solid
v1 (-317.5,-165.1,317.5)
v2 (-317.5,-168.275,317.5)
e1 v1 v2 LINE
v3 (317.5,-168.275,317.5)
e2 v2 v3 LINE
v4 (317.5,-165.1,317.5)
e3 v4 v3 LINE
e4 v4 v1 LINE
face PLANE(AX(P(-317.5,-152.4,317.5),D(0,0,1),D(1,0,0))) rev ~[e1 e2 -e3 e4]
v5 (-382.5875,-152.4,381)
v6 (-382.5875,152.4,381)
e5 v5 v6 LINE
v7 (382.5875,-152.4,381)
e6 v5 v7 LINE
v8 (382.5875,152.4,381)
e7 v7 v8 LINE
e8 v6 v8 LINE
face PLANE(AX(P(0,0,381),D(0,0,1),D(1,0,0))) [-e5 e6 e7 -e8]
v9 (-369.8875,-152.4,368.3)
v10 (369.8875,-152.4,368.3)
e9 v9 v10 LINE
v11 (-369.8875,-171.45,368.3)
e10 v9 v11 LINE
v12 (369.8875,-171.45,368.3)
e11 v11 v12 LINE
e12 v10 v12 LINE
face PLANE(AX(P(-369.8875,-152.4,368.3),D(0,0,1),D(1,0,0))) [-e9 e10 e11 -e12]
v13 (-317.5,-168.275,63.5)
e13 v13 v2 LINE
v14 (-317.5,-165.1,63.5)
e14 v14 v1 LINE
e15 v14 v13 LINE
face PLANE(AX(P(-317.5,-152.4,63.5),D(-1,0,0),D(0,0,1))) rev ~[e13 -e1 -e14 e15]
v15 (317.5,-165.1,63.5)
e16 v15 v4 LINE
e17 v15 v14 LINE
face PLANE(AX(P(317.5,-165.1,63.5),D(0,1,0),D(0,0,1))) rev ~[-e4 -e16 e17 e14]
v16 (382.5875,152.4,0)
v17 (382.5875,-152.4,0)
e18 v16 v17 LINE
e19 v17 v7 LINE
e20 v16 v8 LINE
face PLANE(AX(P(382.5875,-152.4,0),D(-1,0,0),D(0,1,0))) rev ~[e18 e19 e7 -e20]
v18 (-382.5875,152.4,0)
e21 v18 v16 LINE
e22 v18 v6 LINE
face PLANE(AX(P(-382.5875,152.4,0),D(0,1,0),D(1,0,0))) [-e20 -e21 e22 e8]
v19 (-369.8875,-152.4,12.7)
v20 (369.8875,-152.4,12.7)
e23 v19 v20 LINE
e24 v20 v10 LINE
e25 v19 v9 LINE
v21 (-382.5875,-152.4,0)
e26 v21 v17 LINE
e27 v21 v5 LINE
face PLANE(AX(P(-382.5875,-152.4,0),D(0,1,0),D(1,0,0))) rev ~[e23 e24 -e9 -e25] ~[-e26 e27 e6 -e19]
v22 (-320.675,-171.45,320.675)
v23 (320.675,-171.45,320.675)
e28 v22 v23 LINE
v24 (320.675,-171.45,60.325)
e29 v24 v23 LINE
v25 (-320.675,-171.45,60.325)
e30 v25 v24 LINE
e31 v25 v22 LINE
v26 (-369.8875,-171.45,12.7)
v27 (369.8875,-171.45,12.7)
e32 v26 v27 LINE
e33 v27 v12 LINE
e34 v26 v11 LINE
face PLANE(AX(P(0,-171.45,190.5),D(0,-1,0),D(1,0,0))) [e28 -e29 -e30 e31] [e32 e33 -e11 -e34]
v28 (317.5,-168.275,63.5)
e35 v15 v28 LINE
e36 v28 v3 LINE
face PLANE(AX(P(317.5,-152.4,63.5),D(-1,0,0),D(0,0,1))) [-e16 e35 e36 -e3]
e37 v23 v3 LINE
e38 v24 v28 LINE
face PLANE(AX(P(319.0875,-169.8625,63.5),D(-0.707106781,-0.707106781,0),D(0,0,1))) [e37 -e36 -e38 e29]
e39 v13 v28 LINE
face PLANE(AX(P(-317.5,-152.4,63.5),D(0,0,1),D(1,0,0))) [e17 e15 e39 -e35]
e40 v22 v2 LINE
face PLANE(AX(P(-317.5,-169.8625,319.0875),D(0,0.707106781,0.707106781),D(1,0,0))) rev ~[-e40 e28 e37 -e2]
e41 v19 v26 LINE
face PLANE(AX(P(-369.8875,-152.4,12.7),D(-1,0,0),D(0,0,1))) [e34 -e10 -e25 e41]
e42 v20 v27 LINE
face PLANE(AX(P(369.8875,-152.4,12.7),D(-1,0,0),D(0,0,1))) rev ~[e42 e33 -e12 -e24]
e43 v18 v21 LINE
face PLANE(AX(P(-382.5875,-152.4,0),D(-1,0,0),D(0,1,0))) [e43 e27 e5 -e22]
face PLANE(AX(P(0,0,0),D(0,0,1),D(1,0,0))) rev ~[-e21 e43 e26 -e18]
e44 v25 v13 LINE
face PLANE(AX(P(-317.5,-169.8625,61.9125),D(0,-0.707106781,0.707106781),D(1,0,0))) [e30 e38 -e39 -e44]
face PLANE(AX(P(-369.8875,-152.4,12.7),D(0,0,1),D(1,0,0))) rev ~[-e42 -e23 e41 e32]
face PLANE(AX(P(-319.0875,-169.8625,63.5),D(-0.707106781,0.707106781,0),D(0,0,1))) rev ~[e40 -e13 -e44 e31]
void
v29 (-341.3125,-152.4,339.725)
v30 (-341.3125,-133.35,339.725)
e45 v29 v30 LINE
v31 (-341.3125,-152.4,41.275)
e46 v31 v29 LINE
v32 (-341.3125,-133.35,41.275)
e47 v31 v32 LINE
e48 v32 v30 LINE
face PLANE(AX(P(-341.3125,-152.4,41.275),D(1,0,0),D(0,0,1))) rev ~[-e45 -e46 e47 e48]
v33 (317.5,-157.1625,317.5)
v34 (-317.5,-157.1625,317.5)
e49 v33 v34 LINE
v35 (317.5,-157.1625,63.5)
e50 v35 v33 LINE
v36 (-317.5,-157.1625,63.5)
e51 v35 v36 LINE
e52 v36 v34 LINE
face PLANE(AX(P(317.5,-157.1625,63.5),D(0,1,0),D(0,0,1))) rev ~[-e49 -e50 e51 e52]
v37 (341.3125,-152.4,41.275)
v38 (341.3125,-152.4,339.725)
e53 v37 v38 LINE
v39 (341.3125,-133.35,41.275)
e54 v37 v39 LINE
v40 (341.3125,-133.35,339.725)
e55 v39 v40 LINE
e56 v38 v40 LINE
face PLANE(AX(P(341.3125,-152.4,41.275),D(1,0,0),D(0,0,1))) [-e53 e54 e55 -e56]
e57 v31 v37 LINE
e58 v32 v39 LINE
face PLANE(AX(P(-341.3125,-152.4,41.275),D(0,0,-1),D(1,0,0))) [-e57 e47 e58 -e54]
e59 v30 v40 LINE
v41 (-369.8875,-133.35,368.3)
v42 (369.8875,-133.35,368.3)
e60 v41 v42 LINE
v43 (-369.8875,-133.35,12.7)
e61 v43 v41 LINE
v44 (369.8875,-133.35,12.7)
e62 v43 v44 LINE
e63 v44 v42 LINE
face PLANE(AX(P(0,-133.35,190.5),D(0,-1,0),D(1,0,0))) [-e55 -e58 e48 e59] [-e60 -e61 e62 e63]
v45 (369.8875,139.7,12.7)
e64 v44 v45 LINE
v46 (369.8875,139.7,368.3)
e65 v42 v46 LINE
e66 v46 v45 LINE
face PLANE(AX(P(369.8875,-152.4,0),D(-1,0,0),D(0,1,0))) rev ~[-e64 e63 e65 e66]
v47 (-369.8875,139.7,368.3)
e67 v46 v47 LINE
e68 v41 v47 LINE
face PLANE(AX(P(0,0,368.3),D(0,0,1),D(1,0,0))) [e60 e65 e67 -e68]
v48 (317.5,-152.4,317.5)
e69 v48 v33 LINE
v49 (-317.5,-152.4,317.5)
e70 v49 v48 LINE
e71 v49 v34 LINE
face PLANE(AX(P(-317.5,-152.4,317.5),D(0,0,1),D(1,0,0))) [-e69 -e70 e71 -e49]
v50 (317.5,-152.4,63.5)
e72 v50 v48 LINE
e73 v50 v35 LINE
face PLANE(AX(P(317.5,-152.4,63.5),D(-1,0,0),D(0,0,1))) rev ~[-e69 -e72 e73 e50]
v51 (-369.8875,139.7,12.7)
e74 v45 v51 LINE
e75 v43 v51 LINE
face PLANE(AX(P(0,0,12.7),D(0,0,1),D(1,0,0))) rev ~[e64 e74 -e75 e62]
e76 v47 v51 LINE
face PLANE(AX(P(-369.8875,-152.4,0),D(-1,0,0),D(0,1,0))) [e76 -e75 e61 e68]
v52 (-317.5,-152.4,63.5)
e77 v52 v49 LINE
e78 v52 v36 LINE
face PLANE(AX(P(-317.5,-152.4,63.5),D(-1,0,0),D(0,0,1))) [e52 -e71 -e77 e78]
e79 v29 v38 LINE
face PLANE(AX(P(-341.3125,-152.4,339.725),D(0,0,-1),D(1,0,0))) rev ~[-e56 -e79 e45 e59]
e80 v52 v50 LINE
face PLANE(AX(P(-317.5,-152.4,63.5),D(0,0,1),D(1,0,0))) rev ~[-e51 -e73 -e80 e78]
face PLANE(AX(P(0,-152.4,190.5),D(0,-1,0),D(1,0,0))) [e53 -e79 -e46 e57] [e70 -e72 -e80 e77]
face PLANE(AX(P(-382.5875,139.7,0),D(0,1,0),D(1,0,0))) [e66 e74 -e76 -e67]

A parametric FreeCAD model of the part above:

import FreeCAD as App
import Part
import Sketcher

V = App.Vector
Q = App.Units.Quantity


def edges_at(feature, points):
    """Names of the edges that pass closest to the given points."""
    edges = feature.Shape.Edges
    near = lambda p: min(range(len(edges)), key=lambda i: edges[i].distToShape(Part.Vertex(*p))[0])
    return sorted({f"Edge{near(p) + 1}" for p in points})


def faces_at(feature, points):
    """Names of the faces that lie closest to the given points."""
    faces = feature.Shape.Faces
    near = lambda p: min(range(len(faces)), key=lambda i: faces[i].distToShape(Part.Vertex(*p))[0])
    return sorted({f"Face{near(p) + 1}" for p in points})


def add_polygon(sketch, points):
    """Adds a closed chain of lines whose ends are joined by coincident constraints."""
    first, n = sketch.GeometryCount, len(points)
    for a, b in zip(points, points[1:] + points[:1]):
        sketch.addGeometry(Part.LineSegment(App.Vector(*a, 0), App.Vector(*b, 0)), False)
    for i in range(n):
        sketch.addConstraint(Sketcher.Constraint("Coincident", first + i, 2, first + (i + 1) % n, 1))

doc = App.newDocument("Part")
body = doc.addObject("PartDesign::Body", "Body")

# Sketch on XY plane
sketch1 = body.newObject("Sketcher::SketchObject", "Sketch")
sketch1.AttachmentSupport = (doc.getObject("XY_Plane"), [""])
sketch1.MapMode = "FlatFace"
add_polygon(sketch1, [(-383, 152), (-383, -152), (383, -152), (383, 152)])  # lines 0-3
sketch1.addConstraint([
    Sketcher.Constraint("Vertical", 0),
    Sketcher.Constraint("Horizontal", 1),
    Sketcher.Constraint("Vertical", 2),
    Sketcher.Constraint("Horizontal", 3),
    Sketcher.Constraint("Symmetric", 0, 2, 2, 2, -1, 1),
    Sketcher.Constraint("DistanceY", 0, 2, 0, 1, Q("12 in")),
    Sketcher.Constraint("DistanceX", 1, 1, 1, 2, Q("30.125 in")),
])
pad1 = body.newObject("PartDesign::Pad", "Pad")
pad1.Profile = sketch1
pad1.Length = Q("15 in")
doc.recompute()

thickness = body.newObject("PartDesign::Thickness", "Thickness")
thickness.Base = (pad1, faces_at(pad1, [(0, -152.4, 190.5)]))
thickness.Value = Q("0.5 in")
thickness.Reversed = True
thickness.Join = "Arc"

# Sketch on XZ plane
sketch2 = body.newObject("Sketcher::SketchObject", "Sketch001")
sketch2.AttachmentSupport = (doc.getObject("XZ_Plane"), [""])
sketch2.MapMode = "FlatFace"
sketch2.AttachmentOffset = App.Placement(V(0, 0, 6 * 25.4), App.Rotation())
add_polygon(sketch2, [(-383, 381), (-383, 0), (383, 0), (383, 381)])  # lines 0-3
add_polygon(sketch2, [(341, 41), (-341, 41), (-341, 340), (341, 340)])  # lines 4-7
sketch2.addConstraint([
    Sketcher.Constraint("Vertical", 0),
    Sketcher.Constraint("Horizontal", 1),
    Sketcher.Constraint("Vertical", 2),
    Sketcher.Constraint("Horizontal", 3),
    Sketcher.Constraint("Horizontal", 4),
    Sketcher.Constraint("Vertical", 5),
    Sketcher.Constraint("Horizontal", 6),
    Sketcher.Constraint("Vertical", 7),
    Sketcher.Constraint("Symmetric", 0, 2, 1, 2, -1, 1),
    Sketcher.Constraint("DistanceY", 0, 2, 0, 1, Q("15 in")),
    Sketcher.Constraint("DistanceY", 5, 1, 5, 2, Q("11.75 in")),
    Sketcher.Constraint("DistanceX", 4, 2, 1, 2, Q("28.5 in")),
    Sketcher.Constraint("DistanceX", 3, 2, 6, 2, Q("28.5 in")),
    Sketcher.Constraint("DistanceX", 1, 1, 1, 2, Q("30.125 in")),
    Sketcher.Constraint("DistanceY", -1, 1, 4, 2, Q("1.625 in")),
])
pad2 = body.newObject("PartDesign::Pad", "Pad001")
pad2.Profile = sketch2
pad2.Length = Q("0.75 in")
pad2.Reversed = True

# Sketch on XZ plane
sketch3 = body.newObject("Sketcher::SketchObject", "Sketch002")
sketch3.AttachmentSupport = (doc.getObject("XZ_Plane"), [""])
sketch3.MapMode = "FlatFace"
sketch3.AttachmentOffset = App.Placement(V(0, 0, 6 * 25.4), App.Rotation())
add_polygon(sketch3, [(-370, 368), (-370, 13), (370, 13), (370, 368)])  # lines 0-3
add_polygon(sketch3, [(318, 64), (-318, 64), (-318, 318), (318, 318)])  # lines 4-7
sketch3.addConstraint([
    Sketcher.Constraint("Vertical", 0),
    Sketcher.Constraint("Horizontal", 1),
    Sketcher.Constraint("Vertical", 2),
    Sketcher.Constraint("Horizontal", 3),
    Sketcher.Constraint("Horizontal", 4),
    Sketcher.Constraint("Vertical", 5),
    Sketcher.Constraint("Horizontal", 6),
    Sketcher.Constraint("Vertical", 7),
    Sketcher.Constraint("DistanceX", 4, 2, 4, 1, Q("25 in")),
    Sketcher.Constraint("DistanceY", 0, 2, 0, 1, Q("14 in")),
    Sketcher.Constraint("DistanceY", 5, 1, 5, 2, Q("10 in")),
    Sketcher.Constraint("DistanceY", 0, 2, 4, 2, Q("2 in")),
    Sketcher.Constraint("DistanceY", -1, 1, 0, 2, Q("0.5 in")),
    Sketcher.Constraint("DistanceX", 4, 2, -1, 1, Q("12.5 in")),
    Sketcher.Constraint("DistanceX", 1, 1, 1, 2, Q("29.125 in")),
    Sketcher.Constraint("DistanceX", 0, 2, -1, 1, Q("14.5625 in")),
])
pad3 = body.newObject("PartDesign::Pad", "Pad002")
pad3.Profile = sketch3
pad3.Length = Q("0.75 in")

# Sketch on YZ plane
sketch4 = body.newObject("Sketcher::SketchObject", "Sketch003")
sketch4.AttachmentSupport = (doc.getObject("YZ_Plane"), [""])
sketch4.MapMode = "FlatFace"
sketch4.AttachmentOffset = App.Placement(V(0, 0, 12.5 * 25.4), App.Rotation())
add_polygon(sketch4, [(-157, 318), (-157, 64), (-165, 64), (-165, 318)])  # lines 0-3
sketch4.addConstraint([
    Sketcher.Constraint("Vertical", 0),
    Sketcher.Constraint("Horizontal", 1),
    Sketcher.Constraint("Vertical", 2),
    Sketcher.Constraint("Horizontal", 3),
    Sketcher.Constraint("DistanceY", 0, 2, 0, 1, Q("10 in")),
    Sketcher.Constraint("DistanceY", -1, 1, 0, 2, Q("2.5 in")),
    Sketcher.Constraint("DistanceX", 1, 2, -1, 1, Q("6.5 in")),
    Sketcher.Constraint("DistanceX", 1, 2, 1, 1, Q("0.3125 in")),
])
pad4 = body.newObject("PartDesign::Pad", "Pad003")
pad4.Profile = sketch4
pad4.Type = "UpToLast"
pad4.Reversed = True
doc.recompute()

chamfer = body.newObject("PartDesign::Chamfer", "Chamfer")
chamfer.Base = (pad4, edges_at(pad4, [
    (0, -171.45, 63.5),
    (-317.5, -171.45, 190.5),
    (0, -171.45, 317.5),
    (317.5, -171.45, 190.5),
]))
chamfer.Size = Q("0.125 in")

doc.recompute()
